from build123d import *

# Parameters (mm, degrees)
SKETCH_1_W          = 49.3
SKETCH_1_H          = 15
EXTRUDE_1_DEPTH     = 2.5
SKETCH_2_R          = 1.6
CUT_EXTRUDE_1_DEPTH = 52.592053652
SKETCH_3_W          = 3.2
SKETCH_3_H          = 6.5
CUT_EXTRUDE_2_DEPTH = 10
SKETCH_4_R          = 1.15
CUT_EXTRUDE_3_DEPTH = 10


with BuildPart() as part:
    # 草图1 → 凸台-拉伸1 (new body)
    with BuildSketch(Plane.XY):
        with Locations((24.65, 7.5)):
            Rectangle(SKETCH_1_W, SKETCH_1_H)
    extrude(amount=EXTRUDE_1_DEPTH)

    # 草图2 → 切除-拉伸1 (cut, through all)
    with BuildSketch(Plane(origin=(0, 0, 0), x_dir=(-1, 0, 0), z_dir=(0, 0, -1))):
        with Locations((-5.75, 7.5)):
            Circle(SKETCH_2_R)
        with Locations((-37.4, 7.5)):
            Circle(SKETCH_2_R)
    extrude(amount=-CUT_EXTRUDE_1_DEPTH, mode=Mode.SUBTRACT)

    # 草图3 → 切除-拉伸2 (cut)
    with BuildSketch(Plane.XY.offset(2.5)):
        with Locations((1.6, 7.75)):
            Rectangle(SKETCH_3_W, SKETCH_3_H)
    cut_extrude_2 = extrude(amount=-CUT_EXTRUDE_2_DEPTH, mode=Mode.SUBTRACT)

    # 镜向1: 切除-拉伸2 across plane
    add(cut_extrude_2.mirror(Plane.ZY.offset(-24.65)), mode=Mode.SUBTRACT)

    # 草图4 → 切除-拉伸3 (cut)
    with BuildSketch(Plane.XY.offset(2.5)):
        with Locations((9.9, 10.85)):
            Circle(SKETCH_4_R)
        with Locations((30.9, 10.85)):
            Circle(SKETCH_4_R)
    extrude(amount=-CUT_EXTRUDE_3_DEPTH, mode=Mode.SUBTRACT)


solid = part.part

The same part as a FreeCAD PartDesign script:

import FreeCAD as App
import Part
import Sketcher

V = App.Vector


def add_polygon(sketch, points):
    """Adds a closed chain of lines whose ends are joined by coincident constraints."""
    first, n = sketch.GeometryCount, len(points)
    for a, b in zip(points, points[1:] + points[:1]):
        sketch.addGeometry(Part.LineSegment(App.Vector(*a, 0), App.Vector(*b, 0)), False)
    for i in range(n):
        sketch.addConstraint(Sketcher.Constraint("Coincident", first + i, 2, first + (i + 1) % n, 1))

doc = App.newDocument("Part")
body = doc.addObject("PartDesign::Body", "Body")

# Sketch on XY plane
sketch1 = body.newObject("Sketcher::SketchObject", "Sketch")
sketch1.AttachmentSupport = (doc.getObject("XY_Plane"), [""])
sketch1.MapMode = "FlatFace"
add_polygon(sketch1, [(0, 15), (0, 0), (49, 0), (49, 15)])  # lines 0-3
sketch1.addConstraint(Sketcher.Constraint("Vertical", 0))
sketch1.addConstraint(Sketcher.Constraint("Horizontal", 1))
sketch1.addConstraint(Sketcher.Constraint("Vertical", 2))
sketch1.addConstraint(Sketcher.Constraint("Horizontal", 3))
sketch1.addConstraint(Sketcher.Constraint("Coincident", 0, 2, -1, 1))
sketch1.addConstraint(Sketcher.Constraint("DistanceY", 0, 2, 0, 1, 15.0))
sketch1.addConstraint(Sketcher.Constraint("DistanceX", 1, 1, 1, 2, 49.3))
pad1 = body.newObject("PartDesign::Pad", "Pad")
pad1.Profile = sketch1
pad1.Length = 2.5

# Sketch on XY plane
sketch2 = body.newObject("Sketcher::SketchObject", "Sketch001")
sketch2.AttachmentSupport = (doc.getObject("XY_Plane"), [""])
sketch2.MapMode = "FlatFace"
sketch2.addGeometry(Part.Circle(V(5.8, 7.5, 0), V(0, 0, 1), 1.6), False)
sketch2.addGeometry(Part.Circle(V(37.4, 7.5, 0), V(0, 0, 1), 1.6), False)
sketch2.addConstraint(Sketcher.Constraint("Equal", 0, 1))
sketch2.addConstraint(Sketcher.Constraint("Horizontal", 0, 3, 1, 3))
sketch2.addConstraint(Sketcher.Constraint("Diameter", 0, 3.2))
sketch2.addConstraint(Sketcher.Constraint("DistanceY", -1, 1, 0, 3, 7.5))
sketch2.addConstraint(Sketcher.Constraint("DistanceX", -1, 1, 1, 3, 37.4))
sketch2.addConstraint(Sketcher.Constraint("DistanceX", -1, 1, 0, 3, 5.75))
pocket1 = body.newObject("PartDesign::Pocket", "Pocket")
pocket1.Profile = sketch2
pocket1.Type = "ThroughAll"
pocket1.Reversed = True

# Sketch on XY plane
sketch3 = body.newObject("Sketcher::SketchObject", "Sketch002")
sketch3.AttachmentSupport = (doc.getObject("XY_Plane"), [""])
sketch3.MapMode = "FlatFace"
sketch3.AttachmentOffset = App.Placement(V(0, 0, 2.5), App.Rotation())
add_polygon(sketch3, [(0, 11), (0, 4.5), (3.2, 4.5), (3.2, 11)])  # lines 0-3
sketch3.addConstraint(Sketcher.Constraint("Vertical", 0))
sketch3.addConstraint(Sketcher.Constraint("Horizontal", 1))
sketch3.addConstraint(Sketcher.Constraint("Vertical", 2))
sketch3.addConstraint(Sketcher.Constraint("Horizontal", 3))
sketch3.addConstraint(Sketcher.Constraint("PointOnObject", 0, 2, -2))
sketch3.addConstraint(Sketcher.Constraint("DistanceX", 1, 1, 1, 2, 3.2))
sketch3.addConstraint(Sketcher.Constraint("DistanceY", 0, 2, 0, 1, 6.5))
sketch3.addConstraint(Sketcher.Constraint("DistanceY", -1, 1, 2, 2, 11.0))
pocket2 = body.newObject("PartDesign::Pocket", "Pocket001")
pocket2.Profile = sketch3
pocket2.Length = 10
doc.recompute()

datumplane = body.newObject("PartDesign::Plane", "DatumPlane")
datumplane.AttachmentSupport = (doc.getObject("YZ_Plane"), [""])
datumplane.MapMode = "FlatFace"
datumplane.AttachmentOffset = App.Placement(V(0, 0, 24.65), App.Rotation())
mirrored = body.newObject("PartDesign::Mirrored", "Mirrored")
mirrored.Originals = [pocket2]
mirrored.MirrorPlane = (datumplane, [""])
body.Tip = mirrored

# Sketch on XY plane
sketch4 = body.newObject("Sketcher::SketchObject", "Sketch003")
sketch4.AttachmentSupport = (doc.getObject("XY_Plane"), [""])
sketch4.MapMode = "FlatFace"
sketch4.AttachmentOffset = App.Placement(V(0, 0, 2.5), App.Rotation())
sketch4.addGeometry(Part.Circle(V(9.9, 10.8, 0), V(0, 0, 1), 1.1), False)
sketch4.addGeometry(Part.Circle(V(30.9, 10.8, 0), V(0, 0, 1), 1.1), False)
sketch4.addConstraint(Sketcher.Constraint("Equal", 0, 1))
sketch4.addConstraint(Sketcher.Constraint("Horizontal", 0, 3, 1, 3))
sketch4.addConstraint(Sketcher.Constraint("Diameter", 0, 2.3))
sketch4.addConstraint(Sketcher.Constraint("DistanceX", 0, 3, 1, 3, 21.0))
sketch4.addConstraint(Sketcher.Constraint("DistanceX", -1, 1, 0, 3, 9.9))
sketch4.addConstraint(Sketcher.Constraint("DistanceY", -1, 1, 0, 3, 10.85))
pocket3 = body.newObject("PartDesign::Pocket", "Pocket002")
pocket3.Profile = sketch4
pocket3.Length = 10

doc.recompute()
